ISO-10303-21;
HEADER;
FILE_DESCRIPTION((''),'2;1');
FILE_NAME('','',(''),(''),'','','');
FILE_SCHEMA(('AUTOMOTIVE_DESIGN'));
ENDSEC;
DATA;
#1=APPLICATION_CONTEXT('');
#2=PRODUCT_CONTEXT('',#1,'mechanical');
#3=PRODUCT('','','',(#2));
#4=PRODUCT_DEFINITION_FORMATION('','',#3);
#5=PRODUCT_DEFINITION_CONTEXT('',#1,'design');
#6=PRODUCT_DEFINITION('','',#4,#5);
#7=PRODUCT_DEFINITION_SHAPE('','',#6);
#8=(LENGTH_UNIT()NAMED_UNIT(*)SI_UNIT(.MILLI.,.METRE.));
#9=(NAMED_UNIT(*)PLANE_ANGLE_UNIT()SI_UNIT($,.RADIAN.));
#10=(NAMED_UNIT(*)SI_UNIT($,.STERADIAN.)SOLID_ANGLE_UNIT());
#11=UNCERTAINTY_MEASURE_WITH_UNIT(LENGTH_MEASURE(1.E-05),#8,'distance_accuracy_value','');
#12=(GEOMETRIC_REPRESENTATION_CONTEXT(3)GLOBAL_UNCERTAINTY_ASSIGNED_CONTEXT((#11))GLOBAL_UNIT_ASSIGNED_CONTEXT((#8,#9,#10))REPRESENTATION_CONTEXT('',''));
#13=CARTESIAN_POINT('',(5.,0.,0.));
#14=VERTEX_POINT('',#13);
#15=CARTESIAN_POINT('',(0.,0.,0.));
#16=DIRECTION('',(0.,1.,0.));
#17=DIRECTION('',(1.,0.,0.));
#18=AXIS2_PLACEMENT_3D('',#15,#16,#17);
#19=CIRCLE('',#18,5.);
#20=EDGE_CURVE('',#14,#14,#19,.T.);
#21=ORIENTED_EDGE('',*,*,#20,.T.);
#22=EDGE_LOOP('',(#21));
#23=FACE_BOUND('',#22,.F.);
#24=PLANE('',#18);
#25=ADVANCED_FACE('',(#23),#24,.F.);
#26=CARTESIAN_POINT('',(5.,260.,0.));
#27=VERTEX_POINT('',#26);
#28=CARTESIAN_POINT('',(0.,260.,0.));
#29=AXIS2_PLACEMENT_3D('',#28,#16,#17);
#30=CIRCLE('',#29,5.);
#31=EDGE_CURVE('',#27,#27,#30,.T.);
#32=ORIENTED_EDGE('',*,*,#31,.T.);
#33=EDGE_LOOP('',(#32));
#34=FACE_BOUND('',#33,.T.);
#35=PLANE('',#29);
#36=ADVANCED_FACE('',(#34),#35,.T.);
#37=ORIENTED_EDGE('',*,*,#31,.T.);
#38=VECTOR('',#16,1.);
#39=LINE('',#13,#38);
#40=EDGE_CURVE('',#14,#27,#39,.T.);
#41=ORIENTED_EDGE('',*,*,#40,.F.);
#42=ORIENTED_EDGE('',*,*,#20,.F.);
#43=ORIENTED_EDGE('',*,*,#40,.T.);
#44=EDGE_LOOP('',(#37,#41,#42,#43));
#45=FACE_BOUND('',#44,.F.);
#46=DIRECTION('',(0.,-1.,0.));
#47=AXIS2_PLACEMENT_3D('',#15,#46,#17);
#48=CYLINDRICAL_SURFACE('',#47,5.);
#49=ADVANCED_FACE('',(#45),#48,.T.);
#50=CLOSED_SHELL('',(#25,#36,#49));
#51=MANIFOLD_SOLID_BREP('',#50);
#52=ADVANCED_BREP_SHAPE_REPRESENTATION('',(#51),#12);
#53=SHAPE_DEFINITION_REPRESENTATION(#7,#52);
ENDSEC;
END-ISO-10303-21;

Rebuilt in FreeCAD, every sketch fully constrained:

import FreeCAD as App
import Part
import Sketcher

doc = App.newDocument("Part")
body = doc.addObject("PartDesign::Body", "Body")

# Sketch on XZ plane
sketch1 = body.newObject("Sketcher::SketchObject", "Sketch")
sketch1.AttachmentSupport = (doc.getObject("XZ_Plane"), [""])
sketch1.MapMode = "FlatFace"
sketch1.addGeometry(Part.Circle(App.Vector(0, 0, 0), App.Vector(0, 0, 1), 5), False)
sketch1.addConstraint([
    Sketcher.Constraint("Coincident", 0, 3, -1, 1),
    Sketcher.Constraint("Diameter", 0, 10.0),
])
pad1 = body.newObject("PartDesign::Pad", "Pad")
pad1.Profile = sketch1
pad1.Length = 260
pad1.Reversed = True

doc.recompute()
